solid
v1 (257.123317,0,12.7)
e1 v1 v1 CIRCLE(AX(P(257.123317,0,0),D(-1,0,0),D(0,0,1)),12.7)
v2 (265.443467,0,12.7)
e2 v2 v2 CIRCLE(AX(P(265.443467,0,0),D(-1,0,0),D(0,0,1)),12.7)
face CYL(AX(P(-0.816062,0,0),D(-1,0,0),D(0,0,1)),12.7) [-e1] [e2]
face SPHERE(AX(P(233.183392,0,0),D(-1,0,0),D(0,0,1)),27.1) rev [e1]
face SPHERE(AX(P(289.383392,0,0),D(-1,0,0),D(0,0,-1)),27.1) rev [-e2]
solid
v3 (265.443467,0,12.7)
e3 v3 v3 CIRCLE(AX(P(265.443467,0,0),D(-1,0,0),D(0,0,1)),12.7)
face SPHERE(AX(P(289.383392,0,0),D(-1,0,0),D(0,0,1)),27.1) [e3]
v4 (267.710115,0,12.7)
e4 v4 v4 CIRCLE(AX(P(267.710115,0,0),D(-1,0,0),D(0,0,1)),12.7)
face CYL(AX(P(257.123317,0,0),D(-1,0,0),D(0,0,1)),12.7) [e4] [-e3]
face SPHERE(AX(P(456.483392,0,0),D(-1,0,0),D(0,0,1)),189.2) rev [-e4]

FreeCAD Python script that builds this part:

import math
import FreeCAD as App
import Part
import Sketcher

doc = App.newDocument("Part")
body = doc.addObject("PartDesign::Body", "Body")

# Sketch on XZ plane
sketch1 = doc.addObject("Sketcher::SketchObject", "Sketch")
body.addObject(sketch1)
sketch1.AttachmentSupport = (doc.XZ_Plane, [""])
sketch1.MapMode = "FlatFace"
sketch1.addGeometry(Part.LineSegment(App.Vector(265.443467, -12.7, 0), App.Vector(257.123317, -12.7, 0)), False)
sketch1.addGeometry(Part.ArcOfCircle(Part.Circle(App.Vector(233.183392, 0, 0), App.Vector(0, 0, 1), 27.1), math.radians(-27.945708), math.radians(0)), False)
sketch1.addGeometry(Part.LineSegment(App.Vector(260.283392, 0, 0), App.Vector(262.283392, 0, 0)), False)
sketch1.addGeometry(Part.ArcOfCircle(Part.Circle(App.Vector(289.383392, 0, 0), App.Vector(0, 0, 1), 27.1), math.radians(180), math.radians(207.945708)), False)
sketch1.addConstraint(Sketcher.Constraint("Coincident", 0, 2, 1, 1))
sketch1.addConstraint(Sketcher.Constraint("Coincident", 1, 2, 2, 1))
sketch1.addConstraint(Sketcher.Constraint("Coincident", 2, 2, 3, 1))
sketch1.addConstraint(Sketcher.Constraint("Coincident", 3, 2, 0, 1))
sketch1.addConstraint(Sketcher.Constraint("Horizontal", 0))
sketch1.addConstraint(Sketcher.Constraint("Horizontal", 2))
sketch1.addConstraint(Sketcher.Constraint("Equal", 1, 3))
sketch1.addConstraint(Sketcher.Constraint("PointOnObject", 1, 3, -1))
sketch1.addConstraint(Sketcher.Constraint("PointOnObject", 3, 3, -1))
sketch1.addConstraint(Sketcher.Constraint("PointOnObject", 1, 2, -1))
sketch1.addConstraint(Sketcher.Constraint("Radius", 1, 27.1))
sketch1.addConstraint(Sketcher.Constraint("DistanceX", 2, 1, 2, 2, 2.0))
sketch1.addConstraint(Sketcher.Constraint("DistanceY", 0, 2, -1, 1, 12.7))
sketch1.addConstraint(Sketcher.Constraint("DistanceX", -1, 1, 1, 3, 233.183392))
revolution = doc.addObject("PartDesign::Revolution", "Revolution")
body.addObject(revolution)
revolution.Profile = sketch1
revolution.ReferenceAxis = (sketch1, ["H_Axis"])
revolution.Angle = 360
body2 = doc.addObject("PartDesign::Body", "Body001")

# Sketch on XZ plane
sketch2 = doc.addObject("Sketcher::SketchObject", "Sketch001")
body2.addObject(sketch2)
sketch2.AttachmentSupport = (doc.getObject("XZ_Plane001"), [""])
sketch2.MapMode = "FlatFace"
sketch2.addGeometry(Part.LineSegment(App.Vector(267.710115, -12.7, 0), App.Vector(265.443467, -12.7, 0)), False)
sketch2.addGeometry(Part.ArcOfCircle(Part.Circle(App.Vector(289.383392, 0, 0), App.Vector(0, 0, 1), 27.1), math.radians(180), math.radians(207.945708)), False)
sketch2.addGeometry(Part.LineSegment(App.Vector(262.283392, 0, 0), App.Vector(267.283392, 0, 0)), False)
sketch2.addGeometry(Part.ArcOfCircle(Part.Circle(App.Vector(456.483392, 0, 0), App.Vector(0, 0, 1), 189.200001), math.radians(-180), math.radians(-176.151142)), False)
sketch2.addConstraint(Sketcher.Constraint("Coincident", 0, 2, 1, 2))
sketch2.addConstraint(Sketcher.Constraint("Coincident", 1, 1, 2, 1))
sketch2.addConstraint(Sketcher.Constraint("Coincident", 2, 2, 3, 1))
sketch2.addConstraint(Sketcher.Constraint("Coincident", 3, 2, 0, 1))
sketch2.addConstraint(Sketcher.Constraint("Horizontal", 0))
sketch2.addConstraint(Sketcher.Constraint("Horizontal", 2))
sketch2.addConstraint(Sketcher.Constraint("PointOnObject", 1, 3, -1))
sketch2.addConstraint(Sketcher.Constraint("PointOnObject", 3, 3, -1))
sketch2.addConstraint(Sketcher.Constraint("PointOnObject", 1, 1, -1))
sketch2.addConstraint(Sketcher.Constraint("Radius", 1, 27.1))
sketch2.addConstraint(Sketcher.Constraint("Radius", 3, 189.200001))
sketch2.addConstraint(Sketcher.Constraint("DistanceX", 2, 1, 2, 2, 5.0))
sketch2.addConstraint(Sketcher.Constraint("DistanceY", 0, 2, -1, 1, 12.7))
sketch2.addConstraint(Sketcher.Constraint("DistanceX", -1, 1, 1, 3, 289.383392))
revolution2 = doc.addObject("PartDesign::Revolution", "Revolution001")
body2.addObject(revolution2)
revolution2.Profile = sketch2
revolution2.ReferenceAxis = (sketch2, ["H_Axis"])
revolution2.Angle = 360

doc.recompute()
